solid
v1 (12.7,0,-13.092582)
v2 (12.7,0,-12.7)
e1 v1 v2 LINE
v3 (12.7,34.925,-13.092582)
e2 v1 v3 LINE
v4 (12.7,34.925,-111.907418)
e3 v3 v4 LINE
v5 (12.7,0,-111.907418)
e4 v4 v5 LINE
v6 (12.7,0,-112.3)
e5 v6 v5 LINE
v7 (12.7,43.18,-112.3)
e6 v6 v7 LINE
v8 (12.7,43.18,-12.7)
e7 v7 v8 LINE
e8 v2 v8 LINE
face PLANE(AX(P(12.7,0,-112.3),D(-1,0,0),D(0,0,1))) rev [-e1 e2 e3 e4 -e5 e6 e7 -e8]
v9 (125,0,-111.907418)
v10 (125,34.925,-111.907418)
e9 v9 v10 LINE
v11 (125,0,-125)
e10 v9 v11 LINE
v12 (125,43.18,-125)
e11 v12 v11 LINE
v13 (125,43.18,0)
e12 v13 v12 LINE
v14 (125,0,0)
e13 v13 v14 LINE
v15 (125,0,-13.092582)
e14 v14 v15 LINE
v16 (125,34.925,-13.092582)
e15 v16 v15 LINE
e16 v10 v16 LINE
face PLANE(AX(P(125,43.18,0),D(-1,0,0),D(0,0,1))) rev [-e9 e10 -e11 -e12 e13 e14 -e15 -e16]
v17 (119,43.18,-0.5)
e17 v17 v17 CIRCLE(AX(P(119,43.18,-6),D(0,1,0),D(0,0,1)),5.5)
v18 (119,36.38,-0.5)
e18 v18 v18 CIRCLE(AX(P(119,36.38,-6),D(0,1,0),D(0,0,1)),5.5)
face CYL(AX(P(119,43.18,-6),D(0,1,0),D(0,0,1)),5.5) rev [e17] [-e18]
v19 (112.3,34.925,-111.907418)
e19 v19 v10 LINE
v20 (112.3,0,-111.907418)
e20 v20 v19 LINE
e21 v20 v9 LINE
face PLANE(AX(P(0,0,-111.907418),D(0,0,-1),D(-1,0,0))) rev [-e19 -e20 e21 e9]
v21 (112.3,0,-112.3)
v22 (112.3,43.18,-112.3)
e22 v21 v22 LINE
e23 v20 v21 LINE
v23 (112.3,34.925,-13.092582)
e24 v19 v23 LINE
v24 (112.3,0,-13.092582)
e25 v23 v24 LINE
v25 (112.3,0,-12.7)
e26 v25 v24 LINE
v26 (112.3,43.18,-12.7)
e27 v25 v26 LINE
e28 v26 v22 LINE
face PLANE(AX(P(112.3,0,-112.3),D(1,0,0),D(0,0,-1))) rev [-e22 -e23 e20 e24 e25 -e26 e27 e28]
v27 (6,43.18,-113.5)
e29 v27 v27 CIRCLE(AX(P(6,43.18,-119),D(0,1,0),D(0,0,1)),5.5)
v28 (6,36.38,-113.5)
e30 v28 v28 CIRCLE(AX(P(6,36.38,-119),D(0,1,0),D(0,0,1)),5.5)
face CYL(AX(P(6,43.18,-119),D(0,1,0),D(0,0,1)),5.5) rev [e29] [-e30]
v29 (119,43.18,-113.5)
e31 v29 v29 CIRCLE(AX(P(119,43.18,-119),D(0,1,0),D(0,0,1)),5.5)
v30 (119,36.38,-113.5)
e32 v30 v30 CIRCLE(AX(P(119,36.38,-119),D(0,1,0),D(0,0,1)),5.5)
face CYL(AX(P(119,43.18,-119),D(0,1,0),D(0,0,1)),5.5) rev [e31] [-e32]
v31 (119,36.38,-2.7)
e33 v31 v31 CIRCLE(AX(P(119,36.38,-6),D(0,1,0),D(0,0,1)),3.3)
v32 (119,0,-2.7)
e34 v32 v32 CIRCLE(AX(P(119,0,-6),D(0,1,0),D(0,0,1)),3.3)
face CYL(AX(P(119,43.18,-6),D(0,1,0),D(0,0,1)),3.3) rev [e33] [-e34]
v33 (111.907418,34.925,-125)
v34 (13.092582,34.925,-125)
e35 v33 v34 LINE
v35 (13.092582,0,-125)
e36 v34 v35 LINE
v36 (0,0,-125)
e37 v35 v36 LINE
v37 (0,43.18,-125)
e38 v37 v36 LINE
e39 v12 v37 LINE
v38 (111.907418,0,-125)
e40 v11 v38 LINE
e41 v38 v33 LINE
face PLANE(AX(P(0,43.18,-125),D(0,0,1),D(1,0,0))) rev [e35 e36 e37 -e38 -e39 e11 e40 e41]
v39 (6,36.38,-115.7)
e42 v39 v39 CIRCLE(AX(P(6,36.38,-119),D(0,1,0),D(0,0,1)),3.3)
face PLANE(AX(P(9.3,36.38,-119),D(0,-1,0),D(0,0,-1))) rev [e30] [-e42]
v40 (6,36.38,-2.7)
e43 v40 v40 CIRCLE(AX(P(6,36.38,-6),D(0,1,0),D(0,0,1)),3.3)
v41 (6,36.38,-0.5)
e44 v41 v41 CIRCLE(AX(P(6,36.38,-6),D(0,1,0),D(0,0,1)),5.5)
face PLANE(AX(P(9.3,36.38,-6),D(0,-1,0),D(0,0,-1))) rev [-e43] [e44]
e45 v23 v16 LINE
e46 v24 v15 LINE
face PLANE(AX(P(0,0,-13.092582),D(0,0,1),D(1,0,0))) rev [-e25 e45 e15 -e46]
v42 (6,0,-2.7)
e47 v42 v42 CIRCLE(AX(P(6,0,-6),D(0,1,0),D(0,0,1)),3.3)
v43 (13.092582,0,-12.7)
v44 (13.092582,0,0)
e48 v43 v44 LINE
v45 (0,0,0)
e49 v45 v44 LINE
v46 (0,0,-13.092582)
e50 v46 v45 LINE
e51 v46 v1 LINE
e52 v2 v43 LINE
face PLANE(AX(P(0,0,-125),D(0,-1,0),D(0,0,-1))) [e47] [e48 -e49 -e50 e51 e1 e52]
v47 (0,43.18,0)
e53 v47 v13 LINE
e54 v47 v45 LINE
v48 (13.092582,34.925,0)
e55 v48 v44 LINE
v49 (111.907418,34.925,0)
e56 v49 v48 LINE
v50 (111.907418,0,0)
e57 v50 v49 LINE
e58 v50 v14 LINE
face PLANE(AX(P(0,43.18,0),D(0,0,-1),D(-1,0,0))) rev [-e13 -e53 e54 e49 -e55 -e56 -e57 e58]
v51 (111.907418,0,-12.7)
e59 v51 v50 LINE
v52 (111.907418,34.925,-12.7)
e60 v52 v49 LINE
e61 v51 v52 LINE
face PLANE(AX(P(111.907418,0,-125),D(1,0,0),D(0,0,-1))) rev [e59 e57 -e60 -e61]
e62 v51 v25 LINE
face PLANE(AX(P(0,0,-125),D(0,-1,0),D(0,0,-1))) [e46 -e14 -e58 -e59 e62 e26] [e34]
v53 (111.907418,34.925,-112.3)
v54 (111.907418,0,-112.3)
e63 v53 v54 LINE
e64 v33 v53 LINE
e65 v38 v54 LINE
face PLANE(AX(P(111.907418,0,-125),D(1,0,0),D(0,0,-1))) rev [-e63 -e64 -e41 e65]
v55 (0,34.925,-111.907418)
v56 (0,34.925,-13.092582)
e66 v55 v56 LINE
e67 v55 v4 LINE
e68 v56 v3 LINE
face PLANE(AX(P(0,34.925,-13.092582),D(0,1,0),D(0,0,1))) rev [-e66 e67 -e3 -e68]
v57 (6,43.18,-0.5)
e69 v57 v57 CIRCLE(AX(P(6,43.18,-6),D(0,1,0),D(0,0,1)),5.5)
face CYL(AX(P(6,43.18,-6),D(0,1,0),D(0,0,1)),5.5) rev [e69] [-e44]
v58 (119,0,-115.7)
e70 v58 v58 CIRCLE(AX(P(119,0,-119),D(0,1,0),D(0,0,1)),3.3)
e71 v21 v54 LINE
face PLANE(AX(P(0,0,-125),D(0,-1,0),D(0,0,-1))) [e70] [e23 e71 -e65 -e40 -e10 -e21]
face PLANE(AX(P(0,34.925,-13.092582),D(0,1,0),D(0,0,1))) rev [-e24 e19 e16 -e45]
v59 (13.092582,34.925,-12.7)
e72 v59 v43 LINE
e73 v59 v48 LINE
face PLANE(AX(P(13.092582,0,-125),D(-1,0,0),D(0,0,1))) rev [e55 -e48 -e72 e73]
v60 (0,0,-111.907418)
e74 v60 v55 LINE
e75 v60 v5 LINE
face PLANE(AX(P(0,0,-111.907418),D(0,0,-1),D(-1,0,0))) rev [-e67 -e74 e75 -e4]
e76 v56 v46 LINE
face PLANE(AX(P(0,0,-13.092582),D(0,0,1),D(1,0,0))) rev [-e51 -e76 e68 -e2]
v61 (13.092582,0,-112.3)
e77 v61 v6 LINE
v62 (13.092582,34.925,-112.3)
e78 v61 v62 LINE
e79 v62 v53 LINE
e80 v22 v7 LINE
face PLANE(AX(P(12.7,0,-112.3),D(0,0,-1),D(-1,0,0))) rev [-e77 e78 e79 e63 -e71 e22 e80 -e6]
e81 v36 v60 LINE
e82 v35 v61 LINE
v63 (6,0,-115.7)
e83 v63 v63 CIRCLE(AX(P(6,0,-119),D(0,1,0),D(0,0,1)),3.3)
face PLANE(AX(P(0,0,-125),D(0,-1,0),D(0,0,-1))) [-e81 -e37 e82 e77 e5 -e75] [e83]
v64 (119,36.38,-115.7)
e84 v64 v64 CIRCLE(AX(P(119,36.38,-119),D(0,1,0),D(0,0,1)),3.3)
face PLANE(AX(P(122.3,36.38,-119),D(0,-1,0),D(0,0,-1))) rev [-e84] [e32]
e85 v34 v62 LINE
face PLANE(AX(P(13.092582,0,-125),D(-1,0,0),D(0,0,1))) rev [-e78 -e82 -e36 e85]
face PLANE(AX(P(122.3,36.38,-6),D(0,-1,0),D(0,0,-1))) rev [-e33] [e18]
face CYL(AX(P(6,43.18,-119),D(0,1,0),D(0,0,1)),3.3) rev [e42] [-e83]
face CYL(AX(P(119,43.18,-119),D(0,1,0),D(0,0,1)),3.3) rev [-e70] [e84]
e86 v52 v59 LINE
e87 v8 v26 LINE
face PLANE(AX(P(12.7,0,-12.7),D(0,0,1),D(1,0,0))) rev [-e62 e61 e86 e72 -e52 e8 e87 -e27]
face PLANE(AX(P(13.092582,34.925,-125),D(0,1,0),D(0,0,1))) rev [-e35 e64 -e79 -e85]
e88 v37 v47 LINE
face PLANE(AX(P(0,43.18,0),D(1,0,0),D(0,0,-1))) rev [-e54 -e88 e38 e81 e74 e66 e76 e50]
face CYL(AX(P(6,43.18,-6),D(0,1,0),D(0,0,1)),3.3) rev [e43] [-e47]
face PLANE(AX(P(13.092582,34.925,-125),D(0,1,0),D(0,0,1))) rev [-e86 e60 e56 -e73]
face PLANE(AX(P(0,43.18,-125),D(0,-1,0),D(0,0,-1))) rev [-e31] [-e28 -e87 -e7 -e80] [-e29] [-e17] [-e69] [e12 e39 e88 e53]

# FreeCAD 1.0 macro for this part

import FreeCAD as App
import Part
import Sketcher

V = App.Vector
Q = App.Units.Quantity


def add_polygon(sketch, points):
    """Adds a closed chain of lines whose ends are joined by coincident constraints."""
    first, n = sketch.GeometryCount, len(points)
    for a, b in zip(points, points[1:] + points[:1]):
        sketch.addGeometry(Part.LineSegment(App.Vector(*a, 0), App.Vector(*b, 0)), False)
    for i in range(n):
        sketch.addConstraint(Sketcher.Constraint("Coincident", first + i, 2, first + (i + 1) % n, 1))

doc = App.newDocument("Part")
body = doc.addObject("PartDesign::Body", "Body")

# Sketch on XZ plane
sketch1 = body.newObject("Sketcher::SketchObject", "Sketch")
sketch1.AttachmentSupport = (doc.getObject("XZ_Plane"), [""])
sketch1.MapMode = "FlatFace"
add_polygon(sketch1, [(0, -125), (0, 0), (125, 0), (125, -125)])  # lines 0-3
sketch1.addConstraint([
    Sketcher.Constraint("Vertical", 0),
    Sketcher.Constraint("Horizontal", 1),
    Sketcher.Constraint("Vertical", 2),
    Sketcher.Constraint("Horizontal", 3),
    Sketcher.Constraint("Coincident", 0, 2, -1, 1),
    Sketcher.Constraint("Equal", 3, 0),
    Sketcher.Constraint("DistanceX", 1, 1, 1, 2, Q("125 mm")),
])
pad1 = body.newObject("PartDesign::Pad", "Pad")
pad1.Profile = sketch1
pad1.Length = 43.18
pad1.Reversed = True

# Sketch on XZ plane
sketch2 = body.newObject("Sketcher::SketchObject", "Sketch001")
sketch2.AttachmentSupport = (doc.getObject("XZ_Plane"), [""])
sketch2.MapMode = "FlatFace"
sketch2.AttachmentOffset = App.Placement(V(0, 0, -43.18), App.Rotation())
add_polygon(sketch2, [(112.3, -12.7), (112.3, -112.3), (12.7, -112.3), (12.7, -12.7)])  # lines 0-3
sketch2.addConstraint([
    Sketcher.Constraint("Vertical", 0),
    Sketcher.Constraint("Horizontal", 1),
    Sketcher.Constraint("Vertical", 2),
    Sketcher.Constraint("Horizontal", 3),
    Sketcher.Constraint("Equal", 3, 0),
    Sketcher.Constraint("DistanceX", 1, 2, 1, 1, Q("99.6 mm")),
    Sketcher.Constraint("DistanceX", -1, 1, 0, 2, Q("112.3 mm")),
    Sketcher.Constraint("DistanceY", 0, 2, -1, 1, Q("112.3 mm")),
])
pocket1 = body.newObject("PartDesign::Pocket", "Pocket")
pocket1.Profile = sketch2
pocket1.Type = "ThroughAll"
pocket1.Reversed = True

# Sketch on XY plane
sketch3 = body.newObject("Sketcher::SketchObject", "Sketch002")
sketch3.AttachmentSupport = (doc.getObject("XY_Plane"), [""])
sketch3.MapMode = "FlatFace"
add_polygon(sketch3, [(13.092582, 34.925), (13.092582, 0), (111.907418, 0), (111.907418, 34.925)])  # lines 0-3
sketch3.addConstraint([
    Sketcher.Constraint("Vertical", 0),
    Sketcher.Constraint("Horizontal", 1),
    Sketcher.Constraint("Vertical", 2),
    Sketcher.Constraint("Horizontal", 3),
    Sketcher.Constraint("PointOnObject", 0, 2, -1),
    Sketcher.Constraint("DistanceY", 0, 2, 0, 1, Q("34.925 mm")),
    Sketcher.Constraint("DistanceX", 1, 1, 1, 2, Q("98.814835 mm")),
    Sketcher.Constraint("DistanceX", -1, 1, 0, 2, Q("13.092582 mm")),
])
pocket2 = body.newObject("PartDesign::Pocket", "Pocket001")
pocket2.Profile = sketch3
pocket2.Type = "ThroughAll"

# Sketch on YZ plane
sketch4 = body.newObject("Sketcher::SketchObject", "Sketch003")
sketch4.AttachmentSupport = (doc.getObject("YZ_Plane"), [""])
sketch4.MapMode = "FlatFace"
sketch4.AttachmentOffset = App.Placement(V(0, 0, 125), App.Rotation())
add_polygon(sketch4, [(34.925, -13.092582), (0, -13.092582), (0, -111.907418), (34.925, -111.907418)])  # lines 0-3
sketch4.addConstraint([
    Sketcher.Constraint("Horizontal", 0),
    Sketcher.Constraint("Vertical", 1),
    Sketcher.Constraint("Horizontal", 2),
    Sketcher.Constraint("Vertical", 3),
    Sketcher.Constraint("PointOnObject", 0, 2, -2),
    Sketcher.Constraint("DistanceX", 0, 2, 0, 1, Q("34.925 mm")),
    Sketcher.Constraint("DistanceY", 1, 2, 1, 1, Q("98.814835 mm")),
    Sketcher.Constraint("DistanceY", 0, 2, -1, 1, Q("13.092582 mm")),
])
pocket3 = body.newObject("PartDesign::Pocket", "Pocket002")
pocket3.Profile = sketch4
pocket3.Type = "ThroughAll"

# Sketch on XZ plane
sketch5 = body.newObject("Sketcher::SketchObject", "Sketch004")
sketch5.AttachmentSupport = (doc.getObject("XZ_Plane"), [""])
sketch5.MapMode = "FlatFace"
sketch5.AttachmentOffset = App.Placement(V(0, 0, -43.18), App.Rotation())
sketch5.addGeometry([
    Part.Circle(V(6, -6, 0), V(0, 0, 1), 3.3),
    Part.Circle(V(119, -6, 0), V(0, 0, 1), 3.3),
    Part.Circle(V(119, -119, 0), V(0, 0, 1), 3.3),
    Part.Circle(V(6, -119, 0), V(0, 0, 1), 3.3),
], False)
sketch5.addConstraint([
    Sketcher.Constraint("Equal", 0, 1),
    Sketcher.Constraint("Equal", 1, 2),
    Sketcher.Constraint("Equal", 2, 3),
    Sketcher.Constraint("Horizontal", 0, 3, 1, 3),
    Sketcher.Constraint("Horizontal", 2, 3, 3, 3),
    Sketcher.Constraint("Vertical", 1, 3, 2, 3),
    Sketcher.Constraint("Vertical", 0, 3, 3, 3),
    Sketcher.Constraint("Diameter", 0, Q("6.6 mm")),
    Sketcher.Constraint("DistanceX", -1, 1, 0, 3, Q("6 mm")),
    Sketcher.Constraint("DistanceY", 0, 3, -1, 1, Q("6 mm")),
    Sketcher.Constraint("DistanceX", -1, 1, 1, 3, Q("119 mm")),
    Sketcher.Constraint("DistanceY", 2, 3, -1, 1, Q("119 mm")),
])
doc.recompute()
hole = body.newObject("PartDesign::Hole", "Hole")
hole.Profile = sketch5
hole.ThreadType = "None"
hole.Diameter = 6.6
hole.DepthType = "ThroughAll"
hole.HoleCutType = "Counterbore"
hole.HoleCutDiameter = 11
hole.HoleCutDepth = 6.8
hole.Reversed = True

doc.recompute()
